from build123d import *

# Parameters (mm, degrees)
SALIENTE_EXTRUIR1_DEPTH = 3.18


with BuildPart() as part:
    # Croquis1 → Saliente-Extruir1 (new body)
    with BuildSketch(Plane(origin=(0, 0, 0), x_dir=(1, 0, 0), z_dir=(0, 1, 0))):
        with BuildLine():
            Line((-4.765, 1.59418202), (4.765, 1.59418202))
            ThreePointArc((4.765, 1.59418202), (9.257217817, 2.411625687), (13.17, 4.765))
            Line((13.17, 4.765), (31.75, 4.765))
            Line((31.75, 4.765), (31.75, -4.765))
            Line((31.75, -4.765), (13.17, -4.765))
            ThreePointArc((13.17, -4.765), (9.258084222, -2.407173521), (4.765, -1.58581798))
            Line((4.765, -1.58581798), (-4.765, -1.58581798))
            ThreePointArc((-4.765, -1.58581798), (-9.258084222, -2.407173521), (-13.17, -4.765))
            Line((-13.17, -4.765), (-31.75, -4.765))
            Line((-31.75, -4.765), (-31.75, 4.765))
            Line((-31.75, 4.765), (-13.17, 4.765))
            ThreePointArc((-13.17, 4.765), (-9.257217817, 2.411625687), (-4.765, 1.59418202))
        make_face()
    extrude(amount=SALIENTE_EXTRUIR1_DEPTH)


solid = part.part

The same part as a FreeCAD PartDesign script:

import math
import FreeCAD as App
import Part
import Sketcher

V = App.Vector
Q = App.Units.Quantity

doc = App.newDocument("Part")
body = doc.addObject("PartDesign::Body", "Body")

sketch1 = doc.addObject("Sketcher::SketchObject", "Sketch")
body.addObject(sketch1)
sketch1.AttachmentSupport = (doc.XZ_Plane, [""])
sketch1.MapMode = "FlatFace"
sketch1.addGeometry([
    Part.LineSegment(V(5, -2, 0), V(-5, -2, 0)),
    Part.ArcOfCircle(Part.Circle(V(-5, -14, 0), V(0, 0, 1), 13), math.radians(90), math.radians(131)),
    Part.LineSegment(V(-13, -5, 0), V(-32, -5, 0)),
    Part.LineSegment(V(-32, -5, 0), V(-32, 5, 0)),
    Part.LineSegment(V(-32, 5, 0), V(-13, 5, 0)),
    Part.ArcOfCircle(Part.Circle(V(-5, 14, 0), V(0, 0, 1), 13), math.radians(-131), math.radians(-90)),
    Part.LineSegment(V(-5, 2, 0), V(5, 2, 0)),
    Part.ArcOfCircle(Part.Circle(V(5, 14, 0), V(0, 0, 1), 13), math.radians(-90), math.radians(-49)),
    Part.LineSegment(V(13, 5, 0), V(32, 5, 0)),
    Part.LineSegment(V(32, 5, 0), V(32, -5, 0)),
    Part.LineSegment(V(32, -5, 0), V(13, -5, 0)),
    Part.ArcOfCircle(Part.Circle(V(5, -14, 0), V(0, 0, 1), 13), math.radians(49), math.radians(90)),
], False)
sketch1.addConstraint([
    Sketcher.Constraint("Coincident", 0, 2, 1, 1),
    Sketcher.Constraint("Coincident", 1, 2, 2, 1),
    Sketcher.Constraint("Coincident", 2, 2, 3, 1),
    Sketcher.Constraint("Coincident", 3, 2, 4, 1),
    Sketcher.Constraint("Coincident", 4, 2, 5, 1),
    Sketcher.Constraint("Tangent", 5, 2, 6, 1),
    Sketcher.Constraint("Tangent", 6, 2, 7, 1),
    Sketcher.Constraint("Coincident", 7, 2, 8, 1),
    Sketcher.Constraint("Coincident", 8, 2, 9, 1),
    Sketcher.Constraint("Coincident", 9, 2, 10, 1),
    Sketcher.Constraint("Coincident", 10, 2, 11, 1),
    Sketcher.Constraint("Coincident", 11, 2, 0, 1),
    Sketcher.Constraint("Horizontal", 0),
    Sketcher.Constraint("Horizontal", 2),
    Sketcher.Constraint("Vertical", 3),
    Sketcher.Constraint("Horizontal", 4),
    Sketcher.Constraint("Horizontal", 6),
    Sketcher.Constraint("Horizontal", 8),
    Sketcher.Constraint("Vertical", 9),
    Sketcher.Constraint("Horizontal", 10),
    Sketcher.Constraint("Equal", 1, 5),
    Sketcher.Constraint("Equal", 5, 7),
    Sketcher.Constraint("Equal", 7, 11),
    Sketcher.Constraint("Symmetric", 1, 2, 7, 2, -1, 1),
    Sketcher.Constraint("Symmetric", 3, 2, 9, 2, -1, 1),
    Sketcher.Constraint("Symmetric", 4, 2, 7, 2, -2),
    Sketcher.Constraint("Vertical", 5, 3, 0, 2),
    Sketcher.Constraint("Vertical", 7, 2, 10, 2),
    Sketcher.Constraint("Vertical", 6, 2, 11, 2),
    Sketcher.Constraint("Equal", 6, 3),
    Sketcher.Constraint("Radius", 1, Q("0.5 in")),
    Sketcher.Constraint("DistanceX", 2, 2, -1, 1, Q("1.25 in")),
    Sketcher.Constraint("DistanceX", 0, 2, 0, 1, 9.53),
    Sketcher.Constraint("DistanceX", 2, 2, 2, 1, 18.58),
    Sketcher.Constraint("DistanceY", 0, 2, 5, 3, 15.88),
])
pad1 = doc.addObject("PartDesign::Pad", "Pad")
body.addObject(pad1)
pad1.Profile = sketch1
pad1.Length = 3.18
pad1.Reversed = True

doc.recompute()
